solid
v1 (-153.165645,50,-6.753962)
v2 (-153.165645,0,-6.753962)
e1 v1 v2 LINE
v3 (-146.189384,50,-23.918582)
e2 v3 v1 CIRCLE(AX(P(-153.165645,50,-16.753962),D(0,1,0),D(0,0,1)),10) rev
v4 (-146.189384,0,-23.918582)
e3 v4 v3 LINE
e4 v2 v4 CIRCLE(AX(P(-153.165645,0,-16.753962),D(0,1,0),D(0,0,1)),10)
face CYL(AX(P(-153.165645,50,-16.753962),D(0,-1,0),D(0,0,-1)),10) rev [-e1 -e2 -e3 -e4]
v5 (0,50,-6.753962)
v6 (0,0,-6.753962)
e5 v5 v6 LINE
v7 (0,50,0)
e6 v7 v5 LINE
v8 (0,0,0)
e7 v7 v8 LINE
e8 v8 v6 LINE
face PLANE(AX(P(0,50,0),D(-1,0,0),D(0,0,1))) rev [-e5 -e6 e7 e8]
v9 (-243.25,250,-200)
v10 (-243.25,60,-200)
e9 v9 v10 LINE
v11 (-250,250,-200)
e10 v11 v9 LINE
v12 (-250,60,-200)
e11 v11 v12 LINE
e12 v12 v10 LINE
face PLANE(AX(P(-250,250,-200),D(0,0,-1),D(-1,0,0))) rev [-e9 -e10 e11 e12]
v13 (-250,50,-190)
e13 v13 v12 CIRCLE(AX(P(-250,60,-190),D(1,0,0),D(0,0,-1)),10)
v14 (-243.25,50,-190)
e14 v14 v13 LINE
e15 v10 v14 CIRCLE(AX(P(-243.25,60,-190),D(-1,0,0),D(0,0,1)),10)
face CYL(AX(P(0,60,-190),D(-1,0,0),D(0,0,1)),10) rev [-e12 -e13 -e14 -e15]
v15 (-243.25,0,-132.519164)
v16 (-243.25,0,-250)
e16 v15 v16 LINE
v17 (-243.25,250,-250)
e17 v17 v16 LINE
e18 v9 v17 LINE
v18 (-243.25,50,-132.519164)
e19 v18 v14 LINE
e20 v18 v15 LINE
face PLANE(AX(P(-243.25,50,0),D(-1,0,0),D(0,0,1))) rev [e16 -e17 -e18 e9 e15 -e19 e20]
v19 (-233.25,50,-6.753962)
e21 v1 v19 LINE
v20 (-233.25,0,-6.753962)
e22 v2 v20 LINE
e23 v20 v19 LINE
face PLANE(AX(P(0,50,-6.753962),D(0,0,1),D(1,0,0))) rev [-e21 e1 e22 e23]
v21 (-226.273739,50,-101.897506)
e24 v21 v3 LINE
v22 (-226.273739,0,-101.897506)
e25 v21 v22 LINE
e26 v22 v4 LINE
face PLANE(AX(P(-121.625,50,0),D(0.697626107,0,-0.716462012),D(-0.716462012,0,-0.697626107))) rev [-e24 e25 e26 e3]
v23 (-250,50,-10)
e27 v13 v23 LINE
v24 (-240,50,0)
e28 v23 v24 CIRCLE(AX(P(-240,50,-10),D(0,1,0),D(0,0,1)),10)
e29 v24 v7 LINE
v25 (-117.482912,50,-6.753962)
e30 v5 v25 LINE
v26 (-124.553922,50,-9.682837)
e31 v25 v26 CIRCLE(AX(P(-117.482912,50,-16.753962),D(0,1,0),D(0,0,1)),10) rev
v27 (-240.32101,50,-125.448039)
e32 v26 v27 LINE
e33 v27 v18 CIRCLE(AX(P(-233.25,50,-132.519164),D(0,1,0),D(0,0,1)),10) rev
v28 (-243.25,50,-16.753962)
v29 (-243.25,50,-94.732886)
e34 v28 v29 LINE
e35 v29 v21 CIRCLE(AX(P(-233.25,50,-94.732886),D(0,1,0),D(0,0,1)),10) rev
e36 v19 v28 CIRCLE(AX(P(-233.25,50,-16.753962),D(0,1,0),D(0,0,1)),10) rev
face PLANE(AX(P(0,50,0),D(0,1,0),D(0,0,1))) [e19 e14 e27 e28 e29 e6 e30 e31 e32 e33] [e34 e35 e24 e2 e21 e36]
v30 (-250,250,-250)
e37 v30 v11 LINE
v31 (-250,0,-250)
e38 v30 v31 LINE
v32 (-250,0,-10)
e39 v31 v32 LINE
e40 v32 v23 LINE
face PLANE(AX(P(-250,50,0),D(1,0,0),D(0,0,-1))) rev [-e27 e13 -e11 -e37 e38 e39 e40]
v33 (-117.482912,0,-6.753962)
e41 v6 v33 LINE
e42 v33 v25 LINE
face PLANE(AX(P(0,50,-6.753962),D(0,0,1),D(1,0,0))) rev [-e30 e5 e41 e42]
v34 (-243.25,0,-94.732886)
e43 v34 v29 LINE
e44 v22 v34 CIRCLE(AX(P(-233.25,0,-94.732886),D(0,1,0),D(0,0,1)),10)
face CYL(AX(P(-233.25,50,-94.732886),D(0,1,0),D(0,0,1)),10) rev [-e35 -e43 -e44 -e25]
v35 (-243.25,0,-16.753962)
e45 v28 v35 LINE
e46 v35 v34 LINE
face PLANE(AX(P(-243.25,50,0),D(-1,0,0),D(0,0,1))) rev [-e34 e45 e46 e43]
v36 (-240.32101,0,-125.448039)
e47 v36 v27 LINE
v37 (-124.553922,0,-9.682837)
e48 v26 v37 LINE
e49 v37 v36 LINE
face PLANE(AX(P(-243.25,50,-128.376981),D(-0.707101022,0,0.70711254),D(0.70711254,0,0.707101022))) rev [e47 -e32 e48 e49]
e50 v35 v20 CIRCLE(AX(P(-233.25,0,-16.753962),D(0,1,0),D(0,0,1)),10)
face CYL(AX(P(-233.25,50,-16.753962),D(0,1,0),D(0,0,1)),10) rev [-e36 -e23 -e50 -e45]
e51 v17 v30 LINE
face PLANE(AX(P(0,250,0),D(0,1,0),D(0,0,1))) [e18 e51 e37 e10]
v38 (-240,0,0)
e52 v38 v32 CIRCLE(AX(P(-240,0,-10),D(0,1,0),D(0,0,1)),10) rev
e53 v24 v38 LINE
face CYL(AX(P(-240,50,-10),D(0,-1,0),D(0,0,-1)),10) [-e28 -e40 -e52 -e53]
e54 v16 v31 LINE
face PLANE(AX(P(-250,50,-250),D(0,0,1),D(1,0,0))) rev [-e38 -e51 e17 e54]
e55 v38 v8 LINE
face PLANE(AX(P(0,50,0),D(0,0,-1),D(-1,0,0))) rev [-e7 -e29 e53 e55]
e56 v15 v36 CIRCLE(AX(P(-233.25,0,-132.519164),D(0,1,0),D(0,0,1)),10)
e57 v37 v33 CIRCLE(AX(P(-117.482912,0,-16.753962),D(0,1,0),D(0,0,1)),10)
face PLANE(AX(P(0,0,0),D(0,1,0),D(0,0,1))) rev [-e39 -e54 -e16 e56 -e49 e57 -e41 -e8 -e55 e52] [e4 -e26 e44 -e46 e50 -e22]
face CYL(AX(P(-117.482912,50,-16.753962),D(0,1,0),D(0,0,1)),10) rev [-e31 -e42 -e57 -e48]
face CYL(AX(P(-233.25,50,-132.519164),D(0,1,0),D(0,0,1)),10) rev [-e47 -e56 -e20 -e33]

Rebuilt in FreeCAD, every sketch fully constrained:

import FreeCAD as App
import Part
import Sketcher

V = App.Vector
Q = App.Units.Quantity


def edges_at(feature, points):
    """Names of the edges that pass closest to the given points."""
    edges = feature.Shape.Edges
    near = lambda p: min(range(len(edges)), key=lambda i: edges[i].distToShape(Part.Vertex(*p))[0])
    return sorted({f"Edge{near(p) + 1}" for p in points})

doc = App.newDocument("Part")
body = doc.addObject("PartDesign::Body", "Body")

sketch1 = body.newObject("Sketcher::SketchObject", "Sketch")
sketch1.AttachmentSupport = (doc.getObject("XZ_Plane"), [""])
sketch1.MapMode = "FlatFace"
sketch1.addGeometry([
    Part.LineSegment(V(-250, -7, 0), V(-250, 0, 0)),
    Part.LineSegment(V(-250, 0, 0), V(0, 0, 0)),
    Part.LineSegment(V(0, 0, 0), V(0, -7, 0)),
    Part.LineSegment(V(0, -7, 0), V(-250, -7, 0)),
], False)
sketch1.addConstraint([
    Sketcher.Constraint("Coincident", 0, 2, 1, 1),
    Sketcher.Constraint("Coincident", 1, 2, 2, 1),
    Sketcher.Constraint("Coincident", 2, 2, 3, 1),
    Sketcher.Constraint("Coincident", 3, 2, 0, 1),
    Sketcher.Constraint("Vertical", 0),
    Sketcher.Constraint("Horizontal", 1),
    Sketcher.Constraint("Vertical", 2),
    Sketcher.Constraint("Horizontal", 3),
    Sketcher.Constraint("Coincident", 1, 2, -1, 1),
    Sketcher.Constraint("DistanceX", 1, 1, 1, 2, Q("250 mm")),
    Sketcher.Constraint("DistanceY", 0, 1, 0, 2, Q("6.753962 mm")),
])
pad1 = body.newObject("PartDesign::Pad", "Pad")
pad1.Profile = sketch1
pad1.Length = 50
pad1.Reversed = True

sketch2 = body.newObject("Sketcher::SketchObject", "Sketch001")
sketch2.AttachmentSupport = (doc.getObject("XZ_Plane"), [""])
sketch2.MapMode = "FlatFace"
sketch2.addGeometry([
    Part.LineSegment(V(-250, -250, 0), V(-250, 0, 0)),
    Part.LineSegment(V(-250, 0, 0), V(-243, 0, 0)),
    Part.LineSegment(V(-243, 0, 0), V(-243, -250, 0)),
    Part.LineSegment(V(-243, -250, 0), V(-250, -250, 0)),
], False)
sketch2.addConstraint([
    Sketcher.Constraint("Coincident", 0, 2, 1, 1),
    Sketcher.Constraint("Coincident", 1, 2, 2, 1),
    Sketcher.Constraint("Coincident", 2, 2, 3, 1),
    Sketcher.Constraint("Coincident", 3, 2, 0, 1),
    Sketcher.Constraint("Vertical", 0),
    Sketcher.Constraint("Horizontal", 1),
    Sketcher.Constraint("Vertical", 2),
    Sketcher.Constraint("Horizontal", 3),
    Sketcher.Constraint("PointOnObject", 0, 2, -1),
    Sketcher.Constraint("DistanceY", 0, 1, 0, 2, Q("250 mm")),
    Sketcher.Constraint("DistanceX", 0, 2, -1, 1, Q("250 mm")),
    Sketcher.Constraint("DistanceX", 1, 1, 1, 2, Q("6.75 mm")),
])
pad2 = body.newObject("PartDesign::Pad", "Pad001")
pad2.Profile = sketch2
pad2.Length = 50
pad2.Reversed = True

sketch3 = body.newObject("Sketcher::SketchObject", "Sketch002")
sketch3.AttachmentSupport = (doc.getObject("XZ_Plane"), [""])
sketch3.MapMode = "FlatFace"
sketch3.addGeometry([
    Part.LineSegment(V(-122, -7, 0), V(-243, -128, 0)),
    Part.LineSegment(V(-243, -128, 0), V(-250, -125, 0)),
    Part.LineSegment(V(-250, -125, 0), V(-122, 0, 0)),
    Part.LineSegment(V(-122, 0, 0), V(-122, -7, 0)),
], False)
sketch3.addConstraint([
    Sketcher.Constraint("Coincident", 0, 2, 1, 1),
    Sketcher.Constraint("Coincident", 1, 2, 2, 1),
    Sketcher.Constraint("Coincident", 2, 2, 3, 1),
    Sketcher.Constraint("Coincident", 3, 2, 0, 1),
    Sketcher.Constraint("Vertical", 3),
    Sketcher.Constraint("PointOnObject", 2, 2, -1),
    Sketcher.Constraint("DistanceX", 1, 2, -1, 1, Q("250 mm")),
    Sketcher.Constraint("DistanceY", 1, 2, -1, 1, Q("125 mm")),
    Sketcher.Constraint("DistanceX", 0, 2, -1, 1, Q("243.25 mm")),
    Sketcher.Constraint("DistanceX", 2, 2, -1, 1, Q("121.625 mm")),
    Sketcher.Constraint("DistanceY", 3, 2, 3, 1, Q("6.753962 mm")),
    Sketcher.Constraint("DistanceY", 0, 2, -1, 1, Q("128.376981 mm")),
])
pad3 = body.newObject("PartDesign::Pad", "Pad002")
pad3.Profile = sketch3
pad3.Length = 50
pad3.Reversed = True
doc.recompute()

fillet = body.newObject("PartDesign::Fillet", "Fillet")
fillet.Base = (pad3, edges_at(pad3, [(-250, 25, 0)]))
fillet.Radius = 10
doc.recompute()

fillet2 = body.newObject("PartDesign::Fillet", "Fillet001")
fillet2.Base = (fillet, edges_at(fillet, [(-243.25, 25, -6.754)]))
fillet2.Radius = 10
doc.recompute()

fillet3 = body.newObject("PartDesign::Fillet", "Fillet002")
fillet3.Base = (fillet2, edges_at(fillet2, [(-243.25, 25, -118.427)]))
fillet3.Radius = 10
doc.recompute()

fillet4 = body.newObject("PartDesign::Fillet", "Fillet003")
fillet4.Base = (fillet3, edges_at(fillet3, [(-128.561, 25, -6.754)]))
fillet4.Radius = 10
doc.recompute()

fillet5 = body.newObject("PartDesign::Fillet", "Fillet004")
fillet5.Base = (fillet4, edges_at(fillet4, [(-121.625, 25, -6.754)]))
fillet5.Radius = 10
doc.recompute()

fillet6 = body.newObject("PartDesign::Fillet", "Fillet005")
fillet6.Base = (fillet5, edges_at(fillet5, [(-243.25, 25, -128.377)]))
fillet6.Radius = 10

sketch4 = body.newObject("Sketcher::SketchObject", "Sketch003")
sketch4.AttachmentSupport = (doc.getObject("XZ_Plane"), [""])
sketch4.MapMode = "FlatFace"
sketch4.addGeometry([
    Part.LineSegment(V(-250, -250, 0), V(-250, -200, 0)),
    Part.LineSegment(V(-250, -200, 0), V(-243, -200, 0)),
    Part.LineSegment(V(-243, -200, 0), V(-243, -250, 0)),
    Part.LineSegment(V(-243, -250, 0), V(-250, -250, 0)),
], False)
sketch4.addConstraint([
    Sketcher.Constraint("Coincident", 0, 2, 1, 1),
    Sketcher.Constraint("Coincident", 1, 2, 2, 1),
    Sketcher.Constraint("Coincident", 2, 2, 3, 1),
    Sketcher.Constraint("Coincident", 3, 2, 0, 1),
    Sketcher.Constraint("Vertical", 0),
    Sketcher.Constraint("Horizontal", 1),
    Sketcher.Constraint("Vertical", 2),
    Sketcher.Constraint("Horizontal", 3),
    Sketcher.Constraint("DistanceY", 0, 1, 0, 2, Q("50 mm")),
    Sketcher.Constraint("DistanceX", 0, 2, -1, 1, Q("250 mm")),
    Sketcher.Constraint("DistanceY", 0, 2, -1, 1, Q("200 mm")),
    Sketcher.Constraint("DistanceX", 1, 1, 1, 2, Q("6.75 mm")),
])
pad4 = body.newObject("PartDesign::Pad", "Pad003")
pad4.Profile = sketch4
pad4.Length = 250
pad4.Reversed = True
doc.recompute()

fillet7 = body.newObject("PartDesign::Fillet", "Fillet006")
fillet7.Base = (pad4, edges_at(pad4, [(-246.625, 50, -200)]))
fillet7.Radius = 10

doc.recompute()
